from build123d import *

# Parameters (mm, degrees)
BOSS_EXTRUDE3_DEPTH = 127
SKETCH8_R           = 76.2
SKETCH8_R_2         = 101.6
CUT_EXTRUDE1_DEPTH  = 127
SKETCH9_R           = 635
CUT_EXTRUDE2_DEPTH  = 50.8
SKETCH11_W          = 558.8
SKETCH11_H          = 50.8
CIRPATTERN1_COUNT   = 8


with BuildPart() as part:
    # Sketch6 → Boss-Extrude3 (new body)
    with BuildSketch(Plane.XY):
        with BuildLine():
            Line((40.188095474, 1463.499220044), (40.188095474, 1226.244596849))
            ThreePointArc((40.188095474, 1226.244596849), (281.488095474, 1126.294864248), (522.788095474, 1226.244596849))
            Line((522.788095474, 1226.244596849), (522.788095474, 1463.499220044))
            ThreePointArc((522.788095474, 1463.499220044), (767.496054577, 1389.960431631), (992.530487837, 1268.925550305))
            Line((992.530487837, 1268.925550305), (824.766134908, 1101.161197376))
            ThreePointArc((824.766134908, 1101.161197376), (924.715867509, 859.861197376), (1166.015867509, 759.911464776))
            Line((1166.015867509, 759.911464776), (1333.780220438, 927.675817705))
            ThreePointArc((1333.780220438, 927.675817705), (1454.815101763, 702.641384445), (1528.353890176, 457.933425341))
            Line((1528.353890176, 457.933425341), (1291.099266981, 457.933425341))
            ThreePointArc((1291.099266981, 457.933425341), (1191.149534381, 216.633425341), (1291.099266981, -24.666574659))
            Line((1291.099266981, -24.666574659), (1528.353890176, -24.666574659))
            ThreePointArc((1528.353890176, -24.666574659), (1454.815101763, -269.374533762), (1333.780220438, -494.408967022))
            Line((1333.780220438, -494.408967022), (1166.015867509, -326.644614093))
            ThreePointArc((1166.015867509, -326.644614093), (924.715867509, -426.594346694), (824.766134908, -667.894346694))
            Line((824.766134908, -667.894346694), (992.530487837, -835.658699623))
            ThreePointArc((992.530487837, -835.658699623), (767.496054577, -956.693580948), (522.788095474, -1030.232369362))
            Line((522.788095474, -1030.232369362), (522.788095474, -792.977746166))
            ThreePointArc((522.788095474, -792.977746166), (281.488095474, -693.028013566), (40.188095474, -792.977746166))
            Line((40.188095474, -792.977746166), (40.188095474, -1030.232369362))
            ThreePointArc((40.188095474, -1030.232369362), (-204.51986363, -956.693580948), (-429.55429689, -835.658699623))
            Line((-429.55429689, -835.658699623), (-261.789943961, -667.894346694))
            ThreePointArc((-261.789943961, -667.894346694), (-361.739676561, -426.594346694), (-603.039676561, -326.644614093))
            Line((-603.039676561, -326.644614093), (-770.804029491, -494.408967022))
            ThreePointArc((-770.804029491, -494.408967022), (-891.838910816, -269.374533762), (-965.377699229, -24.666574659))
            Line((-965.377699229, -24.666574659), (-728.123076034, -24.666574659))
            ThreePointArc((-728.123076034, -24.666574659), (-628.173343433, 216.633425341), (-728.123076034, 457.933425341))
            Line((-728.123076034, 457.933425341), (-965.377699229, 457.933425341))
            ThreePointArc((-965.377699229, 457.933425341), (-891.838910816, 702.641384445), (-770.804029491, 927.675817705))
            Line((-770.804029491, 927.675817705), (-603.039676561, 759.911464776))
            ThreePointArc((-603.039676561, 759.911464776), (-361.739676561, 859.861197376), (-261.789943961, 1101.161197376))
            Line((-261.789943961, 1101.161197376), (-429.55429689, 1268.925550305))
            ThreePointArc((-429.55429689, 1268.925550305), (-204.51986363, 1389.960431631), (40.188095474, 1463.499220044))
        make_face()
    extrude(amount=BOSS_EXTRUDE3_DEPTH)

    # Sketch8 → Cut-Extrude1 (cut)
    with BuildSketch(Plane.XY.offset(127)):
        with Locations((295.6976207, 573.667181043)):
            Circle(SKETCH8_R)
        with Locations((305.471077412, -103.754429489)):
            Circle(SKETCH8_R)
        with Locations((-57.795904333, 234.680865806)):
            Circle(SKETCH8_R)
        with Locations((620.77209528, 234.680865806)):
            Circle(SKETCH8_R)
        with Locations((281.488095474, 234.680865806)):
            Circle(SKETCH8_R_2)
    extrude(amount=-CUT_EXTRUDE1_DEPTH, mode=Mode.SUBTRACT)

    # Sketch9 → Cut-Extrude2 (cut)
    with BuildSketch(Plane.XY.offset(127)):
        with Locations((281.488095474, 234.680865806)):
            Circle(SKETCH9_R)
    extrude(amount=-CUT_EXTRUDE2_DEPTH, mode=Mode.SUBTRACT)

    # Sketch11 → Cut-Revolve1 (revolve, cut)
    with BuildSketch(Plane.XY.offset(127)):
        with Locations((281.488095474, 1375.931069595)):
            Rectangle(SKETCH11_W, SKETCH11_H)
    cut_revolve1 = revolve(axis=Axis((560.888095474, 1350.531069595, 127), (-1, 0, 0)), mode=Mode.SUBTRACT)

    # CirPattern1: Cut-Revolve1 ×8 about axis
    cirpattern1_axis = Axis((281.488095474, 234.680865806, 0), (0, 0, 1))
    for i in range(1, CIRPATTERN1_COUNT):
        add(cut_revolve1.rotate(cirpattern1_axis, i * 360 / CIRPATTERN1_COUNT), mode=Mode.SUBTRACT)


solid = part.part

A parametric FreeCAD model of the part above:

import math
import FreeCAD as App
import Part
import Sketcher
from FreeCAD import Vector
Q = App.Units.Quantity


def add_polygon(sketch, points):
    """Adds a closed chain of lines whose ends are joined by coincident constraints."""
    first, n = sketch.GeometryCount, len(points)
    for a, b in zip(points, points[1:] + points[:1]):
        sketch.addGeometry(Part.LineSegment(App.Vector(*a, 0), App.Vector(*b, 0)), False)
    for i in range(n):
        sketch.addConstraint(Sketcher.Constraint("Coincident", first + i, 2, first + (i + 1) % n, 1))

doc = App.newDocument("Part")
body = doc.addObject("PartDesign::Body", "Body")

sketch1 = body.newObject("Sketcher::SketchObject", "Sketch")
sketch1.AttachmentSupport = (doc.getObject("XY_Plane"), [""])
sketch1.MapMode = "FlatFace"
sketch1.addGeometry([
    Part.LineSegment(Vector(40, 1226, 0), Vector(40, 1463, 0)),
    Part.ArcOfCircle(Part.Circle(Vector(281, 217, 0), Vector(0, 0, 1), 1270), math.radians(101), math.radians(124)),
    Part.LineSegment(Vector(-430, 1269, 0), Vector(-262, 1101, 0)),
    Part.ArcOfCircle(Part.Circle(Vector(-603, 1101, 0), Vector(0, 0, 1), 341), math.radians(-90), math.radians(0)),
    Part.LineSegment(Vector(-603, 760, 0), Vector(-771, 928, 0)),
    Part.ArcOfCircle(Part.Circle(Vector(281, 217, 0), Vector(0, 0, 1), 1270), math.radians(146), math.radians(169)),
    Part.LineSegment(Vector(-965, 458, 0), Vector(-728, 458, 0)),
    Part.ArcOfCircle(Part.Circle(Vector(-969, 217, 0), Vector(0, 0, 1), 341), math.radians(-45), math.radians(45)),
    Part.LineSegment(Vector(-728, -25, 0), Vector(-965, -25, 0)),
    Part.ArcOfCircle(Part.Circle(Vector(281, 217, 0), Vector(0, 0, 1), 1270), math.radians(-169), math.radians(-146)),
    Part.LineSegment(Vector(-771, -494, 0), Vector(-603, -327, 0)),
    Part.ArcOfCircle(Part.Circle(Vector(-603, -668, 0), Vector(0, 0, 1), 341), math.radians(0), math.radians(90)),
    Part.LineSegment(Vector(-262, -668, 0), Vector(-430, -836, 0)),
    Part.ArcOfCircle(Part.Circle(Vector(281, 217, 0), Vector(0, 0, 1), 1270), math.radians(-124), math.radians(-101)),
    Part.LineSegment(Vector(40, -1030, 0), Vector(40, -793, 0)),
    Part.ArcOfCircle(Part.Circle(Vector(281, -1034, 0), Vector(0, 0, 1), 341), math.radians(45), math.radians(135)),
    Part.LineSegment(Vector(523, -793, 0), Vector(523, -1030, 0)),
    Part.ArcOfCircle(Part.Circle(Vector(281, 217, 0), Vector(0, 0, 1), 1270), math.radians(-79), math.radians(-56)),
    Part.LineSegment(Vector(993, -836, 0), Vector(825, -668, 0)),
    Part.ArcOfCircle(Part.Circle(Vector(1166, -668, 0), Vector(0, 0, 1), 341), math.radians(90), math.radians(180)),
    Part.LineSegment(Vector(1166, -327, 0), Vector(1334, -494, 0)),
    Part.ArcOfCircle(Part.Circle(Vector(281, 217, 0), Vector(0, 0, 1), 1270), math.radians(-34), math.radians(-11)),
    Part.LineSegment(Vector(1528, -25, 0), Vector(1291, -25, 0)),
    Part.ArcOfCircle(Part.Circle(Vector(1532, 217, 0), Vector(0, 0, 1), 341), math.radians(135), math.radians(225)),
    Part.LineSegment(Vector(1291, 458, 0), Vector(1528, 458, 0)),
    Part.ArcOfCircle(Part.Circle(Vector(281, 217, 0), Vector(0, 0, 1), 1270), math.radians(11), math.radians(34)),
    Part.LineSegment(Vector(1334, 928, 0), Vector(1166, 760, 0)),
    Part.ArcOfCircle(Part.Circle(Vector(1166, 1101, 0), Vector(0, 0, 1), 341), math.radians(180), math.radians(270)),
    Part.LineSegment(Vector(825, 1101, 0), Vector(993, 1269, 0)),
    Part.ArcOfCircle(Part.Circle(Vector(281, 217, 0), Vector(0, 0, 1), 1270), math.radians(56), math.radians(79)),
    Part.LineSegment(Vector(523, 1463, 0), Vector(523, 1226, 0)),
    Part.ArcOfCircle(Part.Circle(Vector(281, 1468, 0), Vector(0, 0, 1), 341), math.radians(-135), math.radians(-45)),
], False)
sketch1.addConstraint([
    Sketcher.Constraint("Coincident", 0, 2, 1, 1),
    Sketcher.Constraint("Coincident", 1, 2, 2, 1),
    Sketcher.Constraint("Coincident", 2, 2, 3, 2),
    Sketcher.Constraint("Coincident", 3, 1, 4, 1),
    Sketcher.Constraint("Coincident", 4, 2, 5, 1),
    Sketcher.Constraint("Coincident", 5, 2, 6, 1),
    Sketcher.Constraint("Coincident", 6, 2, 7, 2),
    Sketcher.Constraint("Coincident", 7, 1, 8, 1),
    Sketcher.Constraint("Coincident", 8, 2, 9, 1),
    Sketcher.Constraint("Coincident", 9, 2, 10, 1),
    Sketcher.Constraint("Coincident", 10, 2, 11, 2),
    Sketcher.Constraint("Coincident", 11, 1, 12, 1),
    Sketcher.Constraint("Coincident", 12, 2, 13, 1),
    Sketcher.Constraint("Coincident", 13, 2, 14, 1),
    Sketcher.Constraint("Coincident", 14, 2, 15, 2),
    Sketcher.Constraint("Coincident", 15, 1, 16, 1),
    Sketcher.Constraint("Coincident", 16, 2, 17, 1),
    Sketcher.Constraint("Coincident", 17, 2, 18, 1),
    Sketcher.Constraint("Coincident", 18, 2, 19, 2),
    Sketcher.Constraint("Coincident", 19, 1, 20, 1),
    Sketcher.Constraint("Coincident", 20, 2, 21, 1),
    Sketcher.Constraint("Coincident", 21, 2, 22, 1),
    Sketcher.Constraint("Coincident", 22, 2, 23, 2),
    Sketcher.Constraint("Coincident", 23, 1, 24, 1),
    Sketcher.Constraint("Coincident", 24, 2, 25, 1),
    Sketcher.Constraint("Coincident", 25, 2, 26, 1),
    Sketcher.Constraint("Coincident", 26, 2, 27, 2),
    Sketcher.Constraint("Coincident", 27, 1, 28, 1),
    Sketcher.Constraint("Coincident", 28, 2, 29, 1),
    Sketcher.Constraint("Coincident", 29, 2, 30, 1),
    Sketcher.Constraint("Coincident", 30, 2, 31, 2),
    Sketcher.Constraint("Coincident", 31, 1, 0, 1),
    Sketcher.Constraint("Vertical", 0),
    Sketcher.Constraint("Horizontal", 6),
    Sketcher.Constraint("Horizontal", 8),
    Sketcher.Constraint("Vertical", 14),
    Sketcher.Constraint("Vertical", 16),
    Sketcher.Constraint("Horizontal", 22),
    Sketcher.Constraint("Horizontal", 24),
    Sketcher.Constraint("Vertical", 30),
    Sketcher.Constraint("Coincident", 5, 3, 1, 3),
    Sketcher.Constraint("Coincident", 9, 3, 1, 3),
    Sketcher.Constraint("Coincident", 13, 3, 1, 3),
    Sketcher.Constraint("Coincident", 17, 3, 1, 3),
    Sketcher.Constraint("Coincident", 21, 3, 1, 3),
    Sketcher.Constraint("Coincident", 25, 3, 1, 3),
    Sketcher.Constraint("Coincident", 29, 3, 1, 3),
    Sketcher.Constraint("Equal", 1, 5),
    Sketcher.Constraint("Equal", 3, 7),
    Sketcher.Constraint("Equal", 5, 9),
    Sketcher.Constraint("Equal", 7, 11),
    Sketcher.Constraint("Equal", 9, 13),
    Sketcher.Constraint("Equal", 11, 15),
    Sketcher.Constraint("Equal", 13, 17),
    Sketcher.Constraint("Equal", 15, 19),
    Sketcher.Constraint("Equal", 17, 21),
    Sketcher.Constraint("Equal", 19, 23),
    Sketcher.Constraint("Equal", 21, 25),
    Sketcher.Constraint("Equal", 23, 27),
    Sketcher.Constraint("Equal", 25, 29),
    Sketcher.Constraint("Equal", 27, 31),
    Sketcher.Constraint("Parallel", 2, 4),
    Sketcher.Constraint("Perpendicular", 4, 10),
    Sketcher.Constraint("Parallel", 10, 12),
    Sketcher.Constraint("Perpendicular", 12, 18),
    Sketcher.Constraint("Parallel", 18, 20),
    Sketcher.Constraint("Perpendicular", 20, 26),
    Sketcher.Constraint("Parallel", 26, 28),
    Sketcher.Constraint("Horizontal", 5, 3, 7, 3),
    Sketcher.Constraint("Horizontal", 11, 3, 19, 3),
    Sketcher.Constraint("Horizontal", 21, 3, 23, 3),
    Sketcher.Constraint("Horizontal", 3, 3, 27, 3),
    Sketcher.Constraint("Horizontal", 27, 3, 2, 2),
    Sketcher.Constraint("Horizontal", 19, 3, 11, 1),
    Sketcher.Constraint("Horizontal", 14, 2, 15, 1),
    Sketcher.Constraint("Horizontal", 11, 1, 18, 2),
    Sketcher.Constraint("Horizontal", 6, 2, 23, 1),
    Sketcher.Constraint("Horizontal", 2, 2, 27, 1),
    Sketcher.Constraint("Horizontal", 30, 2, 31, 1),
    Sketcher.Constraint("Vertical", 3, 3, 11, 3),
    Sketcher.Constraint("Vertical", 13, 3, 15, 3),
    Sketcher.Constraint("Vertical", 19, 3, 27, 3),
    Sketcher.Constraint("Vertical", 29, 3, 31, 3),
    Sketcher.Constraint("Vertical", 11, 3, 3, 1),
    Sketcher.Constraint("Vertical", 6, 2, 7, 1),
    Sketcher.Constraint("Vertical", 3, 1, 10, 2),
    Sketcher.Constraint("Vertical", 27, 3, 19, 1),
    Sketcher.Constraint("Vertical", 22, 2, 23, 1),
    Sketcher.Constraint("Vertical", 19, 1, 26, 2),
    Sketcher.Constraint("Vertical", 14, 2, 31, 1),
    Sketcher.Constraint("Equal", 8, 22),
    Sketcher.Constraint("Equal", 24, 0),
    Sketcher.Constraint("Equal", 0, 14),
    Sketcher.Constraint("Equal", 2, 4),
    Sketcher.Constraint("Equal", 4, 10),
    Sketcher.Constraint("Equal", 10, 12),
    Sketcher.Constraint("Equal", 12, 18),
    Sketcher.Constraint("Radius", 1, Q("50 in")),
    Sketcher.Constraint("DistanceY", 7, 1, 6, 2, Q("19 in")),
    Sketcher.Constraint("DistanceX", 14, 2, 15, 1, Q("19 in")),
    Sketcher.Constraint("DistanceX", 7, 3, 6, 2, Q("9.5 in")),
    Sketcher.Constraint("DistanceX", 8, 2, -1, 1, Q("965.377699 mm")),
    Sketcher.Constraint("DistanceY", 12, 2, -1, 1, Q("835.6587 mm")),
    Sketcher.Constraint("DistanceX", 7, 3, 3, 3, Q("366.383399 mm")),
    Sketcher.Constraint("DistanceX", 6, 1, 6, 2, Q("237.254623 mm")),
])
pad1 = body.newObject("PartDesign::Pad", "Pad")
pad1.Profile = sketch1
pad1.Length = Q("5 in")

sketch2 = body.newObject("Sketcher::SketchObject", "Sketch001")
sketch2.AttachmentSupport = (doc.getObject("XY_Plane"), [""])
sketch2.MapMode = "FlatFace"
sketch2.AttachmentOffset = App.Placement(Vector(0, 0, 5 * 25.4), App.Rotation())
sketch2.addGeometry([
    Part.Circle(Vector(296, 574, 0), Vector(0, 0, 1), 76),
    Part.Circle(Vector(305, -104, 0), Vector(0, 0, 1), 76),
    Part.Circle(Vector(-58, 235, 0), Vector(0, 0, 1), 76),
    Part.Circle(Vector(621, 235, 0), Vector(0, 0, 1), 76),
    Part.Circle(Vector(281, 235, 0), Vector(0, 0, 1), 102),
], False)
sketch2.addConstraint([
    Sketcher.Constraint("Equal", 0, 1),
    Sketcher.Constraint("Equal", 1, 2),
    Sketcher.Constraint("Equal", 2, 3),
    Sketcher.Constraint("Horizontal", 2, 3, 3, 3),
    Sketcher.Constraint("Horizontal", 3, 3, 4, 3),
    Sketcher.Constraint("Diameter", 0, Q("6 in")),
    Sketcher.Constraint("Diameter", 4, Q("8 in")),
    Sketcher.Constraint("DistanceX", 2, 3, 3, 3, Q("678.568 mm")),
    Sketcher.Constraint("DistanceX", 4, 3, 3, 3, Q("339.284 mm")),
    Sketcher.Constraint("DistanceX", -1, 1, 0, 3, Q("295.697621 mm")),
    Sketcher.Constraint("DistanceY", -1, 1, 0, 3, Q("573.667181 mm")),
    Sketcher.Constraint("DistanceY", 1, 3, -1, 1, Q("103.754429 mm")),
    Sketcher.Constraint("DistanceX", 2, 3, 1, 3, Q("363.266982 mm")),
    Sketcher.Constraint("DistanceX", -1, 1, 1, 3, Q("305.471077 mm")),
    Sketcher.Constraint("DistanceY", -1, 1, 2, 3, Q("234.680866 mm")),
])
pocket1 = body.newObject("PartDesign::Pocket", "Pocket")
pocket1.Profile = sketch2
pocket1.Length = Q("5 in")

sketch3 = body.newObject("Sketcher::SketchObject", "Sketch002")
sketch3.AttachmentSupport = (doc.getObject("XY_Plane"), [""])
sketch3.MapMode = "FlatFace"
sketch3.AttachmentOffset = App.Placement(Vector(0, 0, 5 * 25.4), App.Rotation())
sketch3.addGeometry(Part.Circle(Vector(281, 235, 0), Vector(0, 0, 1), 635), False)
sketch3.addConstraint([
    Sketcher.Constraint("Diameter", 0, Q("50 in")),
    Sketcher.Constraint("DistanceX", -1, 1, 0, 3, Q("281.488095 mm")),
    Sketcher.Constraint("DistanceY", -1, 1, 0, 3, Q("234.680866 mm")),
])
pocket2 = body.newObject("PartDesign::Pocket", "Pocket001")
pocket2.Profile = sketch3
pocket2.Length = Q("2 in")

sketch4 = body.newObject("Sketcher::SketchObject", "Sketch003")
sketch4.AttachmentSupport = (doc.getObject("XY_Plane"), [""])
sketch4.MapMode = "FlatFace"
sketch4.AttachmentOffset = App.Placement(Vector(0, 0, 5 * 25.4), App.Rotation())
add_polygon(sketch4, [(2, 1401), (2, 1351), (561, 1351), (561, 1401)])
sketch4.addGeometry(Part.LineSegment(Vector(561, 1351, 0), Vector(2, 1351, 0)), True)
sketch4.addConstraint([
    Sketcher.Constraint("Vertical", 0),
    Sketcher.Constraint("Horizontal", 1),
    Sketcher.Constraint("Vertical", 2),
    Sketcher.Constraint("Horizontal", 3),
    Sketcher.Constraint("Horizontal", 4),
    Sketcher.Constraint("Coincident", 4, 1, 1, 2),
    Sketcher.Constraint("Vertical", 3, 2, 4, 2),
    Sketcher.Constraint("DistanceX", 1, 1, 1, 2, Q("22 in")),
    Sketcher.Constraint("DistanceY", 0, 2, 0, 1, Q("2 in")),
    Sketcher.Constraint("DistanceY", -1, 1, 0, 2, Q("1350.53107 mm")),
    Sketcher.Constraint("DistanceX", -1, 1, 0, 2, Q("2.088095 mm")),
])
groove = body.newObject("PartDesign::Groove", "Groove")
groove.Profile = sketch4
groove.ReferenceAxis = (sketch4, ["Axis0"])
groove.Angle = 360
doc.recompute()

datumline = body.newObject("PartDesign::Line", "DatumLine")
datumline.Placement = App.Placement(Vector(281.488095, 234.680866, 0), App.Rotation(Vector(0, 0, 1), Vector(0, 0, 1)))
polarpattern = body.newObject("PartDesign::PolarPattern", "PolarPattern")
polarpattern.Originals = [groove]
polarpattern.Axis = (datumline, [""])
polarpattern.Angle = 360
polarpattern.Occurrences = 8
body.Tip = polarpattern

doc.recompute()
